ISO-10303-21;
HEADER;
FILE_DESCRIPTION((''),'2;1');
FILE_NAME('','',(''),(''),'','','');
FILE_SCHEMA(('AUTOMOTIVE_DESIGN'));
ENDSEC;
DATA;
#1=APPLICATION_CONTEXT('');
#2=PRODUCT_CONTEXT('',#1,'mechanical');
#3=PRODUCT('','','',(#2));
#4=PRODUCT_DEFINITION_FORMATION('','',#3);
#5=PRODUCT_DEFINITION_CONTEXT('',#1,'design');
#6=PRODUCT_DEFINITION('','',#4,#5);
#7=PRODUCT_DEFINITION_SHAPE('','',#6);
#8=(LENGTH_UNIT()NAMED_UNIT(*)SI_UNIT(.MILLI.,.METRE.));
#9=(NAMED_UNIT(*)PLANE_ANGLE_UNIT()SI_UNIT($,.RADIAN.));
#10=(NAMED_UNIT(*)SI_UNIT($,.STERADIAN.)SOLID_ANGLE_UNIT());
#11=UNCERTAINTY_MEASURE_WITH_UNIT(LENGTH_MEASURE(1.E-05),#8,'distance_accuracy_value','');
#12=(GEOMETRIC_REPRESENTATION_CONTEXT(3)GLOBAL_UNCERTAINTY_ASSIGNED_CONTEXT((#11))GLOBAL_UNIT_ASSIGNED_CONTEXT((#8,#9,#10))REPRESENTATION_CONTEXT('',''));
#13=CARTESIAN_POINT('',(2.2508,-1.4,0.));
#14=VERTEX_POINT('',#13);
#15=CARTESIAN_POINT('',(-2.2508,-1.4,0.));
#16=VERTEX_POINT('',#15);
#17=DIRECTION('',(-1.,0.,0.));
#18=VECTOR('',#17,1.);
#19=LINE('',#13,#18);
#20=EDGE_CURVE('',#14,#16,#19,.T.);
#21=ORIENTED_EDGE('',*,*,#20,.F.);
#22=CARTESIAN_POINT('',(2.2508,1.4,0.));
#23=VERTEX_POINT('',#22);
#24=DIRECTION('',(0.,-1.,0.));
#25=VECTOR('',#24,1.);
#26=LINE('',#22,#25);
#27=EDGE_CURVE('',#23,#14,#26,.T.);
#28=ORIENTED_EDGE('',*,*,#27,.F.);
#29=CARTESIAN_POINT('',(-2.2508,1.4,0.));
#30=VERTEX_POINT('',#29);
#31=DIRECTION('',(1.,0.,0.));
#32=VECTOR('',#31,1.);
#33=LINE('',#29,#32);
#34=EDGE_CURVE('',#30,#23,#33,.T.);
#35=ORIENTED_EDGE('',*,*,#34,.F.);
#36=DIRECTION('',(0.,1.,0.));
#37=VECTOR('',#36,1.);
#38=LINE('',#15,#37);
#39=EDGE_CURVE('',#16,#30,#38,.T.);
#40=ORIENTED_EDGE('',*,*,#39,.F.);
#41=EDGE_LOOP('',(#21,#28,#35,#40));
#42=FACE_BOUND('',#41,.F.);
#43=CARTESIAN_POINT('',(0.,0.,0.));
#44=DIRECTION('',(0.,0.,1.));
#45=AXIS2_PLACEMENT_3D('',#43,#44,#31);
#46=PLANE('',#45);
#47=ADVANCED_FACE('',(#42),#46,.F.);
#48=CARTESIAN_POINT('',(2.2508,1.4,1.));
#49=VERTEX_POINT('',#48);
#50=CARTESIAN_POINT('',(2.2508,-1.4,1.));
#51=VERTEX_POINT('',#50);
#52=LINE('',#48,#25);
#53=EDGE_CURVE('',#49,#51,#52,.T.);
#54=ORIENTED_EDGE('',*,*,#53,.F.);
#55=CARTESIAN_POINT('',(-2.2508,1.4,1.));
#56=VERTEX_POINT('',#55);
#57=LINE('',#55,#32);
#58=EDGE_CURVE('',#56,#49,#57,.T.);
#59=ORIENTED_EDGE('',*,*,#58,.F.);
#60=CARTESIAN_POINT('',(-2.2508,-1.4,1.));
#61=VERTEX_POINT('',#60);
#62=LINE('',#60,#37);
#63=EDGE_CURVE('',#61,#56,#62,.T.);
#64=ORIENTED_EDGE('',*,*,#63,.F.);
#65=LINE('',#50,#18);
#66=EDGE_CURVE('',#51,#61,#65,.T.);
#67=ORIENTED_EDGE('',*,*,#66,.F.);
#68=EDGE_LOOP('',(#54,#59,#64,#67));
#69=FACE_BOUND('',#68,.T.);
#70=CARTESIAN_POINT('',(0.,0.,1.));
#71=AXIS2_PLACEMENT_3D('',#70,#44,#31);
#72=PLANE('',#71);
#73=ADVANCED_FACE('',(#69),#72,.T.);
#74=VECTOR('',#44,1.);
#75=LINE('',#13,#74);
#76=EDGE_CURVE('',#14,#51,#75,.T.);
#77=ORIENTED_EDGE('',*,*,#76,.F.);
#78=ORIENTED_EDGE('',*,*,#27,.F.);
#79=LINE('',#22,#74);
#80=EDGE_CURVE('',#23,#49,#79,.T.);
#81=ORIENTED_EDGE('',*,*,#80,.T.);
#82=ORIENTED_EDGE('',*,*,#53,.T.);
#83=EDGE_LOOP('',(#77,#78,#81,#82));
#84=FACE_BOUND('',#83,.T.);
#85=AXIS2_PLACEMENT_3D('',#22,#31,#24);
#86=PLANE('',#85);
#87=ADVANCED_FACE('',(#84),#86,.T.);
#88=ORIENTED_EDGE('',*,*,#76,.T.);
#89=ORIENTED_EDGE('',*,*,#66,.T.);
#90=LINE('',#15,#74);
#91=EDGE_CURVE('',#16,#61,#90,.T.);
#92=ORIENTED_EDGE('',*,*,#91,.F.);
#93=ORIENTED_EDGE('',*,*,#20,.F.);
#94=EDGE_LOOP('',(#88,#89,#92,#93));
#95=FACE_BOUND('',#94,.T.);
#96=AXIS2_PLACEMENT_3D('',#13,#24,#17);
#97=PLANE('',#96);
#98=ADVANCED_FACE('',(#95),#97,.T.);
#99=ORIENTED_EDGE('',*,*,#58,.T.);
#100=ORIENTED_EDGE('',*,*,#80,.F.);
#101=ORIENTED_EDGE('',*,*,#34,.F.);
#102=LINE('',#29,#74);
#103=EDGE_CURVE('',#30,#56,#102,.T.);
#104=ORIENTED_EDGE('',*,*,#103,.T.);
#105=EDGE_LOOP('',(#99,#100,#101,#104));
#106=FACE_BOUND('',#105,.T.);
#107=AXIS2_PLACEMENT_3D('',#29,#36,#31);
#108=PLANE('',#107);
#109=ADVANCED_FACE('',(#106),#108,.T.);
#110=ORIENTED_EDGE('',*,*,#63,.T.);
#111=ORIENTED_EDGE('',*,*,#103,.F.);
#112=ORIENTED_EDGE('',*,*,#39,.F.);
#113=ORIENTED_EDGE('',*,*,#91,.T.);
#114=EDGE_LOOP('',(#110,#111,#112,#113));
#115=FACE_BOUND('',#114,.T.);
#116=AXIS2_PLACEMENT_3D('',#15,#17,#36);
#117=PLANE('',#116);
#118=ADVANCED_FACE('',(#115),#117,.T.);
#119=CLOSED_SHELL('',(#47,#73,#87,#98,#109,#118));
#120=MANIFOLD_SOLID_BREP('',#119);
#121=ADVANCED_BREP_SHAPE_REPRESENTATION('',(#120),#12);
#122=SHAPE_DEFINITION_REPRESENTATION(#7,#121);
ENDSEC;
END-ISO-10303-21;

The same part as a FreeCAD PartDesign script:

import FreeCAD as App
import Part
import Sketcher

V = App.Vector

doc = App.newDocument("Part")
body = doc.addObject("PartDesign::Body", "Body")

# Sketch on XY plane
sketch1 = doc.addObject("Sketcher::SketchObject", "Sketch")
body.addObject(sketch1)
sketch1.AttachmentSupport = (doc.XY_Plane, [""])
sketch1.MapMode = "FlatFace"
sketch1.addGeometry([
    Part.LineSegment(V(2.2508, 1.4, 0), V(-2.2508, 1.4, 0)),
    Part.LineSegment(V(-2.2508, 1.4, 0), V(-2.2508, -1.4, 0)),
    Part.LineSegment(V(-2.2508, -1.4, 0), V(2.2508, -1.4, 0)),
    Part.LineSegment(V(2.2508, -1.4, 0), V(2.2508, 1.4, 0)),
], False)
sketch1.addConstraint([
    Sketcher.Constraint("Coincident", 0, 2, 1, 1),
    Sketcher.Constraint("Coincident", 1, 2, 2, 1),
    Sketcher.Constraint("Coincident", 2, 2, 3, 1),
    Sketcher.Constraint("Coincident", 3, 2, 0, 1),
    Sketcher.Constraint("Horizontal", 0),
    Sketcher.Constraint("Vertical", 1),
    Sketcher.Constraint("Horizontal", 2),
    Sketcher.Constraint("Vertical", 3),
    Sketcher.Constraint("Symmetric", 0, 2, 2, 2, -1, 1),
    Sketcher.Constraint("DistanceY", 1, 2, 1, 1, 2.8),
    Sketcher.Constraint("DistanceX", 0, 2, 0, 1, 4.5016),
])
pad1 = doc.addObject("PartDesign::Pad", "Pad")
body.addObject(pad1)
pad1.Profile = sketch1
pad1.Length = 1

doc.recompute()
